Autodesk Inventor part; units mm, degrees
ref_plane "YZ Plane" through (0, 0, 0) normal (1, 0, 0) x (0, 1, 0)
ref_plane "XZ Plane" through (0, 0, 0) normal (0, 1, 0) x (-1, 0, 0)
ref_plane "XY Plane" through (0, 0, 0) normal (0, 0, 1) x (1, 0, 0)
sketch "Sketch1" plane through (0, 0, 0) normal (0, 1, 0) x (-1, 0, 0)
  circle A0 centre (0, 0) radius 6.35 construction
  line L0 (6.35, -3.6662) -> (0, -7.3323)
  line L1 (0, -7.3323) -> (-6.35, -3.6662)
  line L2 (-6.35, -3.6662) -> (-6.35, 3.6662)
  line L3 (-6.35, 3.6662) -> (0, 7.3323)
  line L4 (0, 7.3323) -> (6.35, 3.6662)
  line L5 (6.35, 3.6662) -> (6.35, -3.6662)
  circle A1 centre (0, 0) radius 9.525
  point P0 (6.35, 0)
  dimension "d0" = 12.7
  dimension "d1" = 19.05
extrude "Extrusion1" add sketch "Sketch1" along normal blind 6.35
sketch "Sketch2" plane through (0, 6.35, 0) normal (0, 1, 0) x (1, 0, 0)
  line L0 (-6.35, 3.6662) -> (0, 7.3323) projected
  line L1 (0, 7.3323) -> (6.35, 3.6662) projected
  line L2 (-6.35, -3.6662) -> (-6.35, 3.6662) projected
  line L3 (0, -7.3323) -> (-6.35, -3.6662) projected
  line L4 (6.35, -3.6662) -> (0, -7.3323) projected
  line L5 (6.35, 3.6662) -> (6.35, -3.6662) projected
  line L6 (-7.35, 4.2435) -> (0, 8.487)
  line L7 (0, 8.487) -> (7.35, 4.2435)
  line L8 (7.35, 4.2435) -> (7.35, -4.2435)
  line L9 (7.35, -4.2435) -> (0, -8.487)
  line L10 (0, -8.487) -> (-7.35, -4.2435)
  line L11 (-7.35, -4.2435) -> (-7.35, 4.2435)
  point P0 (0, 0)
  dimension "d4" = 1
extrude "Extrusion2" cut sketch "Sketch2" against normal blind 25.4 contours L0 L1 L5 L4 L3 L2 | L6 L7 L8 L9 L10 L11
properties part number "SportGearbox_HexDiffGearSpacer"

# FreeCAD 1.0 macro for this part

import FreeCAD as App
import Part
import Sketcher

V = App.Vector
Q = App.Units.Quantity


def add_polygon(sketch, points):
    """Adds a closed chain of lines whose ends are joined by coincident constraints."""
    first, n = sketch.GeometryCount, len(points)
    for a, b in zip(points, points[1:] + points[:1]):
        sketch.addGeometry(Part.LineSegment(App.Vector(*a, 0), App.Vector(*b, 0)), False)
    for i in range(n):
        sketch.addConstraint(Sketcher.Constraint("Coincident", first + i, 2, first + (i + 1) % n, 1))

doc = App.newDocument("Part")
params = doc.addObject("Spreadsheet::Sheet", "Params")
for row, (alias, value) in enumerate([
    ("sketch1_diameter", "0.75 in"),
    ("pad1_length", "0.25 in"),
    ("pocket1_length", "1 in"),
], start=1):
    params.set(f"A{row}", alias)
    params.set(f"B{row}", "=" + value)
    params.setAlias(f"B{row}", alias)

body = doc.addObject("PartDesign::Body", "Body")

# Sketch on XZ plane
sketch1 = body.newObject("Sketcher::SketchObject", "Sketch")
sketch1.AttachmentSupport = (doc.getObject("XZ_Plane"), [""])
sketch1.MapMode = "FlatFace"
sketch1.addGeometry(Part.Circle(V(0, 0, 0), V(0, 0, 1), 10), False)  # 0
add_polygon(sketch1, [(-6, 4), (-6, -4), (0, -7), (6, -4), (6, 4), (0, 7)])  # lines 1-6
sketch1.addConstraint(Sketcher.Constraint("Vertical", 1))
sketch1.addConstraint(Sketcher.Constraint("Vertical", 4))
sketch1.addConstraint(Sketcher.Constraint("Coincident", 0, 3, -1, 1))
sketch1.addConstraint(Sketcher.Constraint("Symmetric", 1, 2, 4, 2, -1, 1))
sketch1.addConstraint(Sketcher.Constraint("Symmetric", 2, 2, 5, 2, -1, 1))
sketch1.addConstraint(Sketcher.Constraint("PointOnObject", 2, 2, -2))
sketch1.addConstraint(Sketcher.Constraint("Parallel", 3, 6))
sketch1.addConstraint(Sketcher.Constraint("Horizontal", 1, 2, 3, 2))
sketch1.addConstraint(Sketcher.Constraint("Diameter", 0, Q("0.75 in")))
sketch1.addConstraint(Sketcher.Constraint("DistanceX", 1, 2, 3, 2, Q("0.5 in")))
sketch1.addConstraint(Sketcher.Constraint("Angle", 2, Q("-29.9995 deg")))
sketch1.addConstraint(Sketcher.Constraint("DistanceY", 2, 2, 4, 2, Q("0.433 in")))
sketch1.setExpression("Constraints[14]", "Params.sketch1_diameter")
pad1 = body.newObject("PartDesign::Pad", "Pad")
pad1.Profile = sketch1
pad1.setExpression("Length", "Params.pad1_length")
pad1.Reversed = True

# Sketch on XZ plane
sketch2 = body.newObject("Sketcher::SketchObject", "Sketch001")
sketch2.AttachmentSupport = (doc.getObject("XZ_Plane"), [""])
sketch2.MapMode = "FlatFace"
sketch2.AttachmentOffset = App.Placement(V(0, 0, -0.25 * 25.4), App.Rotation())
add_polygon(sketch2, [(0, -8), (-7, -4), (-7, 4), (0, 8), (7, 4), (7, -4)])  # lines 0-5
sketch2.addConstraint(Sketcher.Constraint("Vertical", 1))
sketch2.addConstraint(Sketcher.Constraint("Vertical", 4))
sketch2.addConstraint(Sketcher.Constraint("Symmetric", 0, 2, 3, 2, -1, 1))
sketch2.addConstraint(Sketcher.Constraint("Symmetric", 2, 2, 5, 2, -1, 1))
sketch2.addConstraint(Sketcher.Constraint("PointOnObject", 2, 2, -2))
sketch2.addConstraint(Sketcher.Constraint("Parallel", 2, 5))
sketch2.addConstraint(Sketcher.Constraint("Horizontal", 1, 2, 3, 2))
sketch2.addConstraint(Sketcher.Constraint("Angle", 0, Q("150.0001 deg")))
sketch2.addConstraint(Sketcher.Constraint("DistanceY", 1, 1, 1, 2, Q("8.487 mm")))
sketch2.addConstraint(Sketcher.Constraint("DistanceY", 0, 2, 2, 2, Q("0.5012 in")))
pocket1 = body.newObject("PartDesign::Pocket", "Pocket")
pocket1.Profile = sketch2
pocket1.setExpression("Length", "Params.pocket1_length")
pocket1.Reversed = True

doc.recompute()
